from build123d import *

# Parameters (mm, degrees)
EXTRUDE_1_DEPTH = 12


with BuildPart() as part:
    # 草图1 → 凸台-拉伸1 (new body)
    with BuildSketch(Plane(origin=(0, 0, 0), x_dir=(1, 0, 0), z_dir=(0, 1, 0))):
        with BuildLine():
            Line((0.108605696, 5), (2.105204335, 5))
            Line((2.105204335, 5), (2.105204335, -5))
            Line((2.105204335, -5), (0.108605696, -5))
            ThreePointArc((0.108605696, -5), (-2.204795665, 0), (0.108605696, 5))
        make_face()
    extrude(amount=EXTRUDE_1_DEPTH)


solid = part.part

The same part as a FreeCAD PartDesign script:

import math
import FreeCAD as App
import Part
import Sketcher

V = App.Vector

doc = App.newDocument("Part")
body = doc.addObject("PartDesign::Body", "Body")

# Sketch on XZ plane
sketch1 = body.newObject("Sketcher::SketchObject", "Sketch")
sketch1.AttachmentSupport = (doc.getObject("XZ_Plane"), [""])
sketch1.MapMode = "FlatFace"
sketch1.addGeometry([
    Part.LineSegment(V(2.105204, -5, 0), V(0.108606, -5, 0)),
    Part.ArcOfCircle(Part.Circle(V(4.355204, 0, 0), V(0, 0, 1), 6.56), math.radians(130.341901), math.radians(229.658099)),
    Part.LineSegment(V(0.108606, 5, 0), V(2.105204, 5, 0)),
    Part.LineSegment(V(2.105204, 5, 0), V(2.105204, -5, 0)),
], False)
sketch1.addConstraint([
    Sketcher.Constraint("Coincident", 0, 2, 1, 2),
    Sketcher.Constraint("Coincident", 1, 1, 2, 1),
    Sketcher.Constraint("Coincident", 2, 2, 3, 1),
    Sketcher.Constraint("Coincident", 3, 2, 0, 1),
    Sketcher.Constraint("Horizontal", 0),
    Sketcher.Constraint("Horizontal", 2),
    Sketcher.Constraint("Vertical", 3),
    Sketcher.Constraint("Symmetric", 0, 2, 1, 1, -1),
    Sketcher.Constraint("DistanceY", 3, 2, 3, 1, 10.0),
    Sketcher.Constraint("Radius", 1, 6.56),
    Sketcher.Constraint("DistanceX", 2, 2, 1, 3, 2.25),
    Sketcher.Constraint("DistanceX", -1, 1, 1, 3, 4.355204),
])
pad1 = body.newObject("PartDesign::Pad", "Pad")
pad1.Profile = sketch1
pad1.Length = 12
pad1.Reversed = True

doc.recompute()
